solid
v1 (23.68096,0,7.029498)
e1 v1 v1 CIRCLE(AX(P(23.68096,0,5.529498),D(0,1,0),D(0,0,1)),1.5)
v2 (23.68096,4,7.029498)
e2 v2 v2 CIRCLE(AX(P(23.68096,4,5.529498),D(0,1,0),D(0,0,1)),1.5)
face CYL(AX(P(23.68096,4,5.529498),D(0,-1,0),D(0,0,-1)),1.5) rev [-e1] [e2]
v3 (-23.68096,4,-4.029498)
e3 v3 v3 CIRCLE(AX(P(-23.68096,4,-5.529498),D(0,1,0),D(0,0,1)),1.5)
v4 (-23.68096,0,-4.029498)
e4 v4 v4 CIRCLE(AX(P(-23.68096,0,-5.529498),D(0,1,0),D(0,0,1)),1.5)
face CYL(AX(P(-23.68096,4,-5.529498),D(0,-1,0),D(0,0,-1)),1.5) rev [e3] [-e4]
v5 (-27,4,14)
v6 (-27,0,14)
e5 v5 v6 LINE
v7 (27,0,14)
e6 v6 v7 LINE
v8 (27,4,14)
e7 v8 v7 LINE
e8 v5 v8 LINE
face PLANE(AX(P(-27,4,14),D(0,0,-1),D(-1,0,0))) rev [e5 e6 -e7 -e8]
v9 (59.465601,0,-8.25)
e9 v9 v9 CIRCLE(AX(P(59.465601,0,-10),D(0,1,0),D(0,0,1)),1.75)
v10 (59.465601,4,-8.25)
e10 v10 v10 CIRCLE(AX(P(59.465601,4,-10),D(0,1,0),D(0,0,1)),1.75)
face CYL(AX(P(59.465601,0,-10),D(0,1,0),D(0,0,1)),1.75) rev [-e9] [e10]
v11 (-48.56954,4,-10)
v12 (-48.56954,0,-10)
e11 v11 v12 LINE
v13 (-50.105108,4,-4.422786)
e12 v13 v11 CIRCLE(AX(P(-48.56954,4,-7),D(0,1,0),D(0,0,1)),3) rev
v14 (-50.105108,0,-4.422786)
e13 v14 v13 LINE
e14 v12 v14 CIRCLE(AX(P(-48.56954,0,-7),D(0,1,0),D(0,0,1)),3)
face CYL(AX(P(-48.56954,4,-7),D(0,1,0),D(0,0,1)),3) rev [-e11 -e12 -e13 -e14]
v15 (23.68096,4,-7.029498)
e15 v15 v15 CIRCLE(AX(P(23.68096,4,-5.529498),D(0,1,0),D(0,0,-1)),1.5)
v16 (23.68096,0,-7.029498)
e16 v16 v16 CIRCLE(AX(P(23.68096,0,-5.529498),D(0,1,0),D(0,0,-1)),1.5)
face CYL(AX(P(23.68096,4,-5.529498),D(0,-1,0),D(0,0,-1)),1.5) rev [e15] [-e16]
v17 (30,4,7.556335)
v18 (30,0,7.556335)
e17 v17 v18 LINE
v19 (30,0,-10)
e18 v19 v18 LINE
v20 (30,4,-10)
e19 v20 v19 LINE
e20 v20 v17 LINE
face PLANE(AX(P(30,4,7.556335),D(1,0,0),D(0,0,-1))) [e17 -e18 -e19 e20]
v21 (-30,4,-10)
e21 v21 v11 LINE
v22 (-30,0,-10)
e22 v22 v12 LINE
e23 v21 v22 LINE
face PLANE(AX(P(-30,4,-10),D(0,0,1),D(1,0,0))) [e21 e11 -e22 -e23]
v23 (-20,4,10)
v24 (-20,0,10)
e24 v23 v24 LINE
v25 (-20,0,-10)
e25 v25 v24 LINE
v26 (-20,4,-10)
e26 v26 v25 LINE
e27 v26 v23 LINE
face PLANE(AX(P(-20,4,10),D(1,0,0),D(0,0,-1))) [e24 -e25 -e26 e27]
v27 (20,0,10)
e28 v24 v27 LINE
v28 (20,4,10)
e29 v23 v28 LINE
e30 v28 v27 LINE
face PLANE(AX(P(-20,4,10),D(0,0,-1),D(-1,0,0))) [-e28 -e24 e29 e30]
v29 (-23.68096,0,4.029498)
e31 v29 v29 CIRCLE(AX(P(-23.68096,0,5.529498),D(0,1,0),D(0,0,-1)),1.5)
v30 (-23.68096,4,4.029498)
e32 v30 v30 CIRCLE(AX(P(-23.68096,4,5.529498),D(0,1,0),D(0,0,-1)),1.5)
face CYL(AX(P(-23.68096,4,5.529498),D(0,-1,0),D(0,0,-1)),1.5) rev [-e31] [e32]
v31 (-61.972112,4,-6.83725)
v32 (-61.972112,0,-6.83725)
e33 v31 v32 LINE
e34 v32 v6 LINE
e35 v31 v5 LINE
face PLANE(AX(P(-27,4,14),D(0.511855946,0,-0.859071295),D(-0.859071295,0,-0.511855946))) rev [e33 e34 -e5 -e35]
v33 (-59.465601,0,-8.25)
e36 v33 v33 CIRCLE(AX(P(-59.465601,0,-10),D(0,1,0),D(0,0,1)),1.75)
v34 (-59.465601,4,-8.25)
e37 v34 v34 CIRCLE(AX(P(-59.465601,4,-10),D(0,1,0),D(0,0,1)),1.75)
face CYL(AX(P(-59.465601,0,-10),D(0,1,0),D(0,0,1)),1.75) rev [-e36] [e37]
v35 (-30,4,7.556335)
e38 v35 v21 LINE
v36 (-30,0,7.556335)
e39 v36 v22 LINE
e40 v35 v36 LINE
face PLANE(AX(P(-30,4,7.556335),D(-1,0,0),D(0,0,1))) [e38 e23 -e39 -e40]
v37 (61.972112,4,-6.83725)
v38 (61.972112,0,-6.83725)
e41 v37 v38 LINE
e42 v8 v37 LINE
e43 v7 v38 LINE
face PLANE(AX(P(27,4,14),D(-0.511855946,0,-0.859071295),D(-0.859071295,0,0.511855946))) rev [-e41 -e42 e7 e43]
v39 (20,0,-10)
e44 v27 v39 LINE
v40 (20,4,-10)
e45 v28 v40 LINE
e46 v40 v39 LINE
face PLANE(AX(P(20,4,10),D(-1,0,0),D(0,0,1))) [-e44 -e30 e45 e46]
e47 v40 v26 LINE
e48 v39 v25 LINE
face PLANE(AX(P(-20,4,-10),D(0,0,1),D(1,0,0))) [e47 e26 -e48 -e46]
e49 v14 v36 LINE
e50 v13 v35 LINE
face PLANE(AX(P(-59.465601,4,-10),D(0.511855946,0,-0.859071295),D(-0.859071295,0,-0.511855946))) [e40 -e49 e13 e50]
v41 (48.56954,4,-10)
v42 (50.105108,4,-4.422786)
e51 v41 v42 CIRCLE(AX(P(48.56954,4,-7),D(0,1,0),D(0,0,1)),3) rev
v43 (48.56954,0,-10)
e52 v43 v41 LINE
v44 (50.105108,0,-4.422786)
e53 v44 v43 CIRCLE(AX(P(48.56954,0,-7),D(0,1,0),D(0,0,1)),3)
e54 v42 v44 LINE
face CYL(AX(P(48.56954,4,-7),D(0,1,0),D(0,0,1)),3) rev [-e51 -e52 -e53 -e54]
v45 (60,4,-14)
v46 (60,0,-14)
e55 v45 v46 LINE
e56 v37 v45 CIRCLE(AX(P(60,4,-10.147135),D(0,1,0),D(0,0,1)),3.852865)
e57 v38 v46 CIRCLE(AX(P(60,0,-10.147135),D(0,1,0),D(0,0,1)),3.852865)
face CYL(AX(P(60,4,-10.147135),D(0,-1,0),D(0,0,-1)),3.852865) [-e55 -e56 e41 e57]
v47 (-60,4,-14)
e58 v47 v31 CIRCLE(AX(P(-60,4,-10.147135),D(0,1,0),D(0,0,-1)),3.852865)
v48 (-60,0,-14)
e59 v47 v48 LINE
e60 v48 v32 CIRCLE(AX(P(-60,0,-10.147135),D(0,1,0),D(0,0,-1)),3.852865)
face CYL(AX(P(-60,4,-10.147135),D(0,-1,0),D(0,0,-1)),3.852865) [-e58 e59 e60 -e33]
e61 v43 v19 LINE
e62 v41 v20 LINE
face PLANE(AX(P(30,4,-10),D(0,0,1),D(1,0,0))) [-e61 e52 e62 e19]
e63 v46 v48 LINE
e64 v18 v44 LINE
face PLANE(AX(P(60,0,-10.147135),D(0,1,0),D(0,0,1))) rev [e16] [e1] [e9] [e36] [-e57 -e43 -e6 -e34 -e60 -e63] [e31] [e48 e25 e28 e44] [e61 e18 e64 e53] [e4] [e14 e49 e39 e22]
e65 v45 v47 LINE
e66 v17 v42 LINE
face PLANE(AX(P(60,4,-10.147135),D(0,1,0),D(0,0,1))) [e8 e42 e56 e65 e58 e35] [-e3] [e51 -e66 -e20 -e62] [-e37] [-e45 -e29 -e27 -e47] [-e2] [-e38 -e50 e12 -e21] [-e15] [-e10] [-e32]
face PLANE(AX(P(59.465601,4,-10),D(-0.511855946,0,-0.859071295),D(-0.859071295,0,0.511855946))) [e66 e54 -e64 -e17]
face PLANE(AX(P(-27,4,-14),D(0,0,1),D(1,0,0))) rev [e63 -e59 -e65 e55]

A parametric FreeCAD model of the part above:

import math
import FreeCAD as App
import Part
import Sketcher
from FreeCAD import Vector


def edges_at(feature, points):
    """Names of the edges that pass closest to the given points."""
    edges = feature.Shape.Edges
    near = lambda p: min(range(len(edges)), key=lambda i: edges[i].distToShape(Part.Vertex(*p))[0])
    return sorted({f"Edge{near(p) + 1}" for p in points})


def add_polygon(sketch, points):
    """Adds a closed chain of lines whose ends are joined by coincident constraints."""
    first, n = sketch.GeometryCount, len(points)
    for a, b in zip(points, points[1:] + points[:1]):
        sketch.addGeometry(Part.LineSegment(App.Vector(*a, 0), App.Vector(*b, 0)), False)
    for i in range(n):
        sketch.addConstraint(Sketcher.Constraint("Coincident", first + i, 2, first + (i + 1) % n, 1))

doc = App.newDocument("Part")
body = doc.addObject("PartDesign::Body", "Body")

# Sketch on XZ plane
sketch1 = body.newObject("Sketcher::SketchObject", "Sketch")
sketch1.AttachmentSupport = (doc.getObject("XZ_Plane"), [""])
sketch1.MapMode = "FlatFace"
sketch1.addGeometry(Part.LineSegment(Vector(-27, 14, 0), Vector(27, 14, 0)), False)  # 0
sketch1.addGeometry(Part.LineSegment(Vector(27, 14, 0), Vector(61.972112, -6.83725, 0)), False)  # 1
sketch1.addGeometry(Part.ArcOfCircle(Part.Circle(Vector(60, -10.147135, 0), Vector(0, 0, 1), 3.852865), math.radians(-90), math.radians(59.212467)), False)  # 2
sketch1.addGeometry(Part.LineSegment(Vector(60, -14, 0), Vector(-60, -14, 0)), False)  # 3
sketch1.addGeometry(Part.ArcOfCircle(Part.Circle(Vector(-60, -10.147135, 0), Vector(0, 0, 1), 3.852865), math.radians(120.787533), math.radians(270)), False)  # 4
sketch1.addGeometry(Part.LineSegment(Vector(-61.972112, -6.83725, 0), Vector(-27, 14, 0)), False)  # 5
sketch1.addGeometry(Part.Circle(Vector(-23.68096, 5.529498, 0), Vector(0, 0, 1), 1.5), False)  # 6
sketch1.addGeometry(Part.Circle(Vector(23.68096, 5.529498, 0), Vector(0, 0, 1), 1.5), False)  # 7
add_polygon(sketch1, [(-30, 7.556335), (-59.465601, -10), (-30, -10)])  # lines 8-10
sketch1.addGeometry(Part.Circle(Vector(-23.68096, -5.529498, 0), Vector(0, 0, 1), 1.5), False)  # 11
add_polygon(sketch1, [(20, 10), (-20, 10), (-20, -10), (20, -10)])  # lines 12-15
add_polygon(sketch1, [(30, 7.556335), (30, -10), (59.465601, -10)])  # lines 16-18
sketch1.addGeometry(Part.Circle(Vector(23.68096, -5.529498, 0), Vector(0, 0, 1), 1.5), False)  # 19
sketch1.addConstraint(Sketcher.Constraint("Coincident", 0, 2, 1, 1))
sketch1.addConstraint(Sketcher.Constraint("Tangent", 1, 2, 2, 2))
sketch1.addConstraint(Sketcher.Constraint("Tangent", 2, 1, 3, 1))
sketch1.addConstraint(Sketcher.Constraint("Tangent", 3, 2, 4, 2))
sketch1.addConstraint(Sketcher.Constraint("Tangent", 4, 1, 5, 1))
sketch1.addConstraint(Sketcher.Constraint("Coincident", 5, 2, 0, 1))
sketch1.addConstraint(Sketcher.Constraint("Horizontal", 0))
sketch1.addConstraint(Sketcher.Constraint("Horizontal", 3))
sketch1.addConstraint(Sketcher.Constraint("Horizontal", 9))
sketch1.addConstraint(Sketcher.Constraint("Vertical", 10))
sketch1.addConstraint(Sketcher.Constraint("Horizontal", 12))
sketch1.addConstraint(Sketcher.Constraint("Vertical", 13))
sketch1.addConstraint(Sketcher.Constraint("Horizontal", 14))
sketch1.addConstraint(Sketcher.Constraint("Vertical", 15))
sketch1.addConstraint(Sketcher.Constraint("Vertical", 16))
sketch1.addConstraint(Sketcher.Constraint("Horizontal", 17))
sketch1.addConstraint(Sketcher.Constraint("Equal", 2, 4))
sketch1.addConstraint(Sketcher.Constraint("Equal", 6, 7))
sketch1.addConstraint(Sketcher.Constraint("Equal", 7, 11))
sketch1.addConstraint(Sketcher.Constraint("Equal", 11, 19))
sketch1.addConstraint(Sketcher.Constraint("Symmetric", 7, 3, 11, 3, -1, 1))
sketch1.addConstraint(Sketcher.Constraint("Symmetric", 6, 3, 19, 3, -1, 1))
sketch1.addConstraint(Sketcher.Constraint("Symmetric", 12, 2, 14, 2, -1, 1))
sketch1.addConstraint(Sketcher.Constraint("Symmetric", 6, 3, 7, 3, -2))
sketch1.addConstraint(Sketcher.Constraint("Symmetric", 1, 2, 4, 1, -2))
sketch1.addConstraint(Sketcher.Constraint("Symmetric", 9, 2, 16, 2, -2))
sketch1.addConstraint(Sketcher.Constraint("Parallel", 5, 8))
sketch1.addConstraint(Sketcher.Constraint("Parallel", 1, 18))
sketch1.addConstraint(Sketcher.Constraint("Horizontal", 9, 2, 13, 2))
sketch1.addConstraint(Sketcher.Constraint("Horizontal", 10, 2, 18, 2))
sketch1.addConstraint(Sketcher.Constraint("Diameter", 6, 3.0))
sketch1.addConstraint(Sketcher.Constraint("DistanceX", 0, 1, 0, 2, 54.0))
sketch1.addConstraint(Sketcher.Constraint("DistanceX", 3, 2, 3, 1, 120.0))
sketch1.addConstraint(Sketcher.Constraint("DistanceX", 12, 2, 12, 1, 40.0))
sketch1.addConstraint(Sketcher.Constraint("DistanceY", 13, 2, 13, 1, 20.0))
sketch1.addConstraint(Sketcher.Constraint("DistanceY", -1, 1, 0, 2, 14.0))
sketch1.addConstraint(Sketcher.Constraint("DistanceY", 2, 1, -1, 1, 14.0))
sketch1.addConstraint(Sketcher.Constraint("DistanceX", 9, 2, -1, 1, 30.0))
sketch1.addConstraint(Sketcher.Constraint("DistanceX", 9, 1, 9, 2, 29.465601))
sketch1.addConstraint(Sketcher.Constraint("Radius", 2, 3.852865))
sketch1.addConstraint(Sketcher.Constraint("DistanceX", 6, 3, -1, 1, 23.68096))
sketch1.addConstraint(Sketcher.Constraint("DistanceY", -1, 1, 6, 3, 5.529498))
pad1 = body.newObject("PartDesign::Pad", "Pad")
pad1.Profile = sketch1
pad1.Length = 4
pad1.Reversed = True
doc.recompute()

fillet = body.newObject("PartDesign::Fillet", "Fillet")
fillet.Base = (pad1, edges_at(pad1, [(59.466, 2, -10)]))
fillet.Radius = 3
doc.recompute()

fillet2 = body.newObject("PartDesign::Fillet", "Fillet001")
fillet2.Base = (fillet, edges_at(fillet, [(-59.466, 2, -10)]))
fillet2.Radius = 3

# Sketch on XZ plane
sketch2 = body.newObject("Sketcher::SketchObject", "Sketch001")
sketch2.AttachmentSupport = (doc.getObject("XZ_Plane"), [""])
sketch2.MapMode = "FlatFace"
sketch2.AttachmentOffset = App.Placement(Vector(0, 0, -10), App.Rotation())
sketch2.addGeometry(Part.Circle(Vector(-59.465601, -10, 0), Vector(0, 0, 1), 1.75), False)
sketch2.addGeometry(Part.Circle(Vector(59.465601, -10, 0), Vector(0, 0, 1), 1.75), False)
sketch2.addConstraint(Sketcher.Constraint("Equal", 0, 1))
sketch2.addConstraint(Sketcher.Constraint("Symmetric", 0, 3, 1, 3, -2))
sketch2.addConstraint(Sketcher.Constraint("Diameter", 0, 3.5))
sketch2.addConstraint(Sketcher.Constraint("DistanceY", 0, 3, -1, 1, 10.0))
sketch2.addConstraint(Sketcher.Constraint("DistanceX", 0, 3, -1, 1, 59.465601))
pocket1 = body.newObject("PartDesign::Pocket", "Pocket")
pocket1.Profile = sketch2
pocket1.Type = "ThroughAll"
pocket1.Reversed = True

doc.recompute()
